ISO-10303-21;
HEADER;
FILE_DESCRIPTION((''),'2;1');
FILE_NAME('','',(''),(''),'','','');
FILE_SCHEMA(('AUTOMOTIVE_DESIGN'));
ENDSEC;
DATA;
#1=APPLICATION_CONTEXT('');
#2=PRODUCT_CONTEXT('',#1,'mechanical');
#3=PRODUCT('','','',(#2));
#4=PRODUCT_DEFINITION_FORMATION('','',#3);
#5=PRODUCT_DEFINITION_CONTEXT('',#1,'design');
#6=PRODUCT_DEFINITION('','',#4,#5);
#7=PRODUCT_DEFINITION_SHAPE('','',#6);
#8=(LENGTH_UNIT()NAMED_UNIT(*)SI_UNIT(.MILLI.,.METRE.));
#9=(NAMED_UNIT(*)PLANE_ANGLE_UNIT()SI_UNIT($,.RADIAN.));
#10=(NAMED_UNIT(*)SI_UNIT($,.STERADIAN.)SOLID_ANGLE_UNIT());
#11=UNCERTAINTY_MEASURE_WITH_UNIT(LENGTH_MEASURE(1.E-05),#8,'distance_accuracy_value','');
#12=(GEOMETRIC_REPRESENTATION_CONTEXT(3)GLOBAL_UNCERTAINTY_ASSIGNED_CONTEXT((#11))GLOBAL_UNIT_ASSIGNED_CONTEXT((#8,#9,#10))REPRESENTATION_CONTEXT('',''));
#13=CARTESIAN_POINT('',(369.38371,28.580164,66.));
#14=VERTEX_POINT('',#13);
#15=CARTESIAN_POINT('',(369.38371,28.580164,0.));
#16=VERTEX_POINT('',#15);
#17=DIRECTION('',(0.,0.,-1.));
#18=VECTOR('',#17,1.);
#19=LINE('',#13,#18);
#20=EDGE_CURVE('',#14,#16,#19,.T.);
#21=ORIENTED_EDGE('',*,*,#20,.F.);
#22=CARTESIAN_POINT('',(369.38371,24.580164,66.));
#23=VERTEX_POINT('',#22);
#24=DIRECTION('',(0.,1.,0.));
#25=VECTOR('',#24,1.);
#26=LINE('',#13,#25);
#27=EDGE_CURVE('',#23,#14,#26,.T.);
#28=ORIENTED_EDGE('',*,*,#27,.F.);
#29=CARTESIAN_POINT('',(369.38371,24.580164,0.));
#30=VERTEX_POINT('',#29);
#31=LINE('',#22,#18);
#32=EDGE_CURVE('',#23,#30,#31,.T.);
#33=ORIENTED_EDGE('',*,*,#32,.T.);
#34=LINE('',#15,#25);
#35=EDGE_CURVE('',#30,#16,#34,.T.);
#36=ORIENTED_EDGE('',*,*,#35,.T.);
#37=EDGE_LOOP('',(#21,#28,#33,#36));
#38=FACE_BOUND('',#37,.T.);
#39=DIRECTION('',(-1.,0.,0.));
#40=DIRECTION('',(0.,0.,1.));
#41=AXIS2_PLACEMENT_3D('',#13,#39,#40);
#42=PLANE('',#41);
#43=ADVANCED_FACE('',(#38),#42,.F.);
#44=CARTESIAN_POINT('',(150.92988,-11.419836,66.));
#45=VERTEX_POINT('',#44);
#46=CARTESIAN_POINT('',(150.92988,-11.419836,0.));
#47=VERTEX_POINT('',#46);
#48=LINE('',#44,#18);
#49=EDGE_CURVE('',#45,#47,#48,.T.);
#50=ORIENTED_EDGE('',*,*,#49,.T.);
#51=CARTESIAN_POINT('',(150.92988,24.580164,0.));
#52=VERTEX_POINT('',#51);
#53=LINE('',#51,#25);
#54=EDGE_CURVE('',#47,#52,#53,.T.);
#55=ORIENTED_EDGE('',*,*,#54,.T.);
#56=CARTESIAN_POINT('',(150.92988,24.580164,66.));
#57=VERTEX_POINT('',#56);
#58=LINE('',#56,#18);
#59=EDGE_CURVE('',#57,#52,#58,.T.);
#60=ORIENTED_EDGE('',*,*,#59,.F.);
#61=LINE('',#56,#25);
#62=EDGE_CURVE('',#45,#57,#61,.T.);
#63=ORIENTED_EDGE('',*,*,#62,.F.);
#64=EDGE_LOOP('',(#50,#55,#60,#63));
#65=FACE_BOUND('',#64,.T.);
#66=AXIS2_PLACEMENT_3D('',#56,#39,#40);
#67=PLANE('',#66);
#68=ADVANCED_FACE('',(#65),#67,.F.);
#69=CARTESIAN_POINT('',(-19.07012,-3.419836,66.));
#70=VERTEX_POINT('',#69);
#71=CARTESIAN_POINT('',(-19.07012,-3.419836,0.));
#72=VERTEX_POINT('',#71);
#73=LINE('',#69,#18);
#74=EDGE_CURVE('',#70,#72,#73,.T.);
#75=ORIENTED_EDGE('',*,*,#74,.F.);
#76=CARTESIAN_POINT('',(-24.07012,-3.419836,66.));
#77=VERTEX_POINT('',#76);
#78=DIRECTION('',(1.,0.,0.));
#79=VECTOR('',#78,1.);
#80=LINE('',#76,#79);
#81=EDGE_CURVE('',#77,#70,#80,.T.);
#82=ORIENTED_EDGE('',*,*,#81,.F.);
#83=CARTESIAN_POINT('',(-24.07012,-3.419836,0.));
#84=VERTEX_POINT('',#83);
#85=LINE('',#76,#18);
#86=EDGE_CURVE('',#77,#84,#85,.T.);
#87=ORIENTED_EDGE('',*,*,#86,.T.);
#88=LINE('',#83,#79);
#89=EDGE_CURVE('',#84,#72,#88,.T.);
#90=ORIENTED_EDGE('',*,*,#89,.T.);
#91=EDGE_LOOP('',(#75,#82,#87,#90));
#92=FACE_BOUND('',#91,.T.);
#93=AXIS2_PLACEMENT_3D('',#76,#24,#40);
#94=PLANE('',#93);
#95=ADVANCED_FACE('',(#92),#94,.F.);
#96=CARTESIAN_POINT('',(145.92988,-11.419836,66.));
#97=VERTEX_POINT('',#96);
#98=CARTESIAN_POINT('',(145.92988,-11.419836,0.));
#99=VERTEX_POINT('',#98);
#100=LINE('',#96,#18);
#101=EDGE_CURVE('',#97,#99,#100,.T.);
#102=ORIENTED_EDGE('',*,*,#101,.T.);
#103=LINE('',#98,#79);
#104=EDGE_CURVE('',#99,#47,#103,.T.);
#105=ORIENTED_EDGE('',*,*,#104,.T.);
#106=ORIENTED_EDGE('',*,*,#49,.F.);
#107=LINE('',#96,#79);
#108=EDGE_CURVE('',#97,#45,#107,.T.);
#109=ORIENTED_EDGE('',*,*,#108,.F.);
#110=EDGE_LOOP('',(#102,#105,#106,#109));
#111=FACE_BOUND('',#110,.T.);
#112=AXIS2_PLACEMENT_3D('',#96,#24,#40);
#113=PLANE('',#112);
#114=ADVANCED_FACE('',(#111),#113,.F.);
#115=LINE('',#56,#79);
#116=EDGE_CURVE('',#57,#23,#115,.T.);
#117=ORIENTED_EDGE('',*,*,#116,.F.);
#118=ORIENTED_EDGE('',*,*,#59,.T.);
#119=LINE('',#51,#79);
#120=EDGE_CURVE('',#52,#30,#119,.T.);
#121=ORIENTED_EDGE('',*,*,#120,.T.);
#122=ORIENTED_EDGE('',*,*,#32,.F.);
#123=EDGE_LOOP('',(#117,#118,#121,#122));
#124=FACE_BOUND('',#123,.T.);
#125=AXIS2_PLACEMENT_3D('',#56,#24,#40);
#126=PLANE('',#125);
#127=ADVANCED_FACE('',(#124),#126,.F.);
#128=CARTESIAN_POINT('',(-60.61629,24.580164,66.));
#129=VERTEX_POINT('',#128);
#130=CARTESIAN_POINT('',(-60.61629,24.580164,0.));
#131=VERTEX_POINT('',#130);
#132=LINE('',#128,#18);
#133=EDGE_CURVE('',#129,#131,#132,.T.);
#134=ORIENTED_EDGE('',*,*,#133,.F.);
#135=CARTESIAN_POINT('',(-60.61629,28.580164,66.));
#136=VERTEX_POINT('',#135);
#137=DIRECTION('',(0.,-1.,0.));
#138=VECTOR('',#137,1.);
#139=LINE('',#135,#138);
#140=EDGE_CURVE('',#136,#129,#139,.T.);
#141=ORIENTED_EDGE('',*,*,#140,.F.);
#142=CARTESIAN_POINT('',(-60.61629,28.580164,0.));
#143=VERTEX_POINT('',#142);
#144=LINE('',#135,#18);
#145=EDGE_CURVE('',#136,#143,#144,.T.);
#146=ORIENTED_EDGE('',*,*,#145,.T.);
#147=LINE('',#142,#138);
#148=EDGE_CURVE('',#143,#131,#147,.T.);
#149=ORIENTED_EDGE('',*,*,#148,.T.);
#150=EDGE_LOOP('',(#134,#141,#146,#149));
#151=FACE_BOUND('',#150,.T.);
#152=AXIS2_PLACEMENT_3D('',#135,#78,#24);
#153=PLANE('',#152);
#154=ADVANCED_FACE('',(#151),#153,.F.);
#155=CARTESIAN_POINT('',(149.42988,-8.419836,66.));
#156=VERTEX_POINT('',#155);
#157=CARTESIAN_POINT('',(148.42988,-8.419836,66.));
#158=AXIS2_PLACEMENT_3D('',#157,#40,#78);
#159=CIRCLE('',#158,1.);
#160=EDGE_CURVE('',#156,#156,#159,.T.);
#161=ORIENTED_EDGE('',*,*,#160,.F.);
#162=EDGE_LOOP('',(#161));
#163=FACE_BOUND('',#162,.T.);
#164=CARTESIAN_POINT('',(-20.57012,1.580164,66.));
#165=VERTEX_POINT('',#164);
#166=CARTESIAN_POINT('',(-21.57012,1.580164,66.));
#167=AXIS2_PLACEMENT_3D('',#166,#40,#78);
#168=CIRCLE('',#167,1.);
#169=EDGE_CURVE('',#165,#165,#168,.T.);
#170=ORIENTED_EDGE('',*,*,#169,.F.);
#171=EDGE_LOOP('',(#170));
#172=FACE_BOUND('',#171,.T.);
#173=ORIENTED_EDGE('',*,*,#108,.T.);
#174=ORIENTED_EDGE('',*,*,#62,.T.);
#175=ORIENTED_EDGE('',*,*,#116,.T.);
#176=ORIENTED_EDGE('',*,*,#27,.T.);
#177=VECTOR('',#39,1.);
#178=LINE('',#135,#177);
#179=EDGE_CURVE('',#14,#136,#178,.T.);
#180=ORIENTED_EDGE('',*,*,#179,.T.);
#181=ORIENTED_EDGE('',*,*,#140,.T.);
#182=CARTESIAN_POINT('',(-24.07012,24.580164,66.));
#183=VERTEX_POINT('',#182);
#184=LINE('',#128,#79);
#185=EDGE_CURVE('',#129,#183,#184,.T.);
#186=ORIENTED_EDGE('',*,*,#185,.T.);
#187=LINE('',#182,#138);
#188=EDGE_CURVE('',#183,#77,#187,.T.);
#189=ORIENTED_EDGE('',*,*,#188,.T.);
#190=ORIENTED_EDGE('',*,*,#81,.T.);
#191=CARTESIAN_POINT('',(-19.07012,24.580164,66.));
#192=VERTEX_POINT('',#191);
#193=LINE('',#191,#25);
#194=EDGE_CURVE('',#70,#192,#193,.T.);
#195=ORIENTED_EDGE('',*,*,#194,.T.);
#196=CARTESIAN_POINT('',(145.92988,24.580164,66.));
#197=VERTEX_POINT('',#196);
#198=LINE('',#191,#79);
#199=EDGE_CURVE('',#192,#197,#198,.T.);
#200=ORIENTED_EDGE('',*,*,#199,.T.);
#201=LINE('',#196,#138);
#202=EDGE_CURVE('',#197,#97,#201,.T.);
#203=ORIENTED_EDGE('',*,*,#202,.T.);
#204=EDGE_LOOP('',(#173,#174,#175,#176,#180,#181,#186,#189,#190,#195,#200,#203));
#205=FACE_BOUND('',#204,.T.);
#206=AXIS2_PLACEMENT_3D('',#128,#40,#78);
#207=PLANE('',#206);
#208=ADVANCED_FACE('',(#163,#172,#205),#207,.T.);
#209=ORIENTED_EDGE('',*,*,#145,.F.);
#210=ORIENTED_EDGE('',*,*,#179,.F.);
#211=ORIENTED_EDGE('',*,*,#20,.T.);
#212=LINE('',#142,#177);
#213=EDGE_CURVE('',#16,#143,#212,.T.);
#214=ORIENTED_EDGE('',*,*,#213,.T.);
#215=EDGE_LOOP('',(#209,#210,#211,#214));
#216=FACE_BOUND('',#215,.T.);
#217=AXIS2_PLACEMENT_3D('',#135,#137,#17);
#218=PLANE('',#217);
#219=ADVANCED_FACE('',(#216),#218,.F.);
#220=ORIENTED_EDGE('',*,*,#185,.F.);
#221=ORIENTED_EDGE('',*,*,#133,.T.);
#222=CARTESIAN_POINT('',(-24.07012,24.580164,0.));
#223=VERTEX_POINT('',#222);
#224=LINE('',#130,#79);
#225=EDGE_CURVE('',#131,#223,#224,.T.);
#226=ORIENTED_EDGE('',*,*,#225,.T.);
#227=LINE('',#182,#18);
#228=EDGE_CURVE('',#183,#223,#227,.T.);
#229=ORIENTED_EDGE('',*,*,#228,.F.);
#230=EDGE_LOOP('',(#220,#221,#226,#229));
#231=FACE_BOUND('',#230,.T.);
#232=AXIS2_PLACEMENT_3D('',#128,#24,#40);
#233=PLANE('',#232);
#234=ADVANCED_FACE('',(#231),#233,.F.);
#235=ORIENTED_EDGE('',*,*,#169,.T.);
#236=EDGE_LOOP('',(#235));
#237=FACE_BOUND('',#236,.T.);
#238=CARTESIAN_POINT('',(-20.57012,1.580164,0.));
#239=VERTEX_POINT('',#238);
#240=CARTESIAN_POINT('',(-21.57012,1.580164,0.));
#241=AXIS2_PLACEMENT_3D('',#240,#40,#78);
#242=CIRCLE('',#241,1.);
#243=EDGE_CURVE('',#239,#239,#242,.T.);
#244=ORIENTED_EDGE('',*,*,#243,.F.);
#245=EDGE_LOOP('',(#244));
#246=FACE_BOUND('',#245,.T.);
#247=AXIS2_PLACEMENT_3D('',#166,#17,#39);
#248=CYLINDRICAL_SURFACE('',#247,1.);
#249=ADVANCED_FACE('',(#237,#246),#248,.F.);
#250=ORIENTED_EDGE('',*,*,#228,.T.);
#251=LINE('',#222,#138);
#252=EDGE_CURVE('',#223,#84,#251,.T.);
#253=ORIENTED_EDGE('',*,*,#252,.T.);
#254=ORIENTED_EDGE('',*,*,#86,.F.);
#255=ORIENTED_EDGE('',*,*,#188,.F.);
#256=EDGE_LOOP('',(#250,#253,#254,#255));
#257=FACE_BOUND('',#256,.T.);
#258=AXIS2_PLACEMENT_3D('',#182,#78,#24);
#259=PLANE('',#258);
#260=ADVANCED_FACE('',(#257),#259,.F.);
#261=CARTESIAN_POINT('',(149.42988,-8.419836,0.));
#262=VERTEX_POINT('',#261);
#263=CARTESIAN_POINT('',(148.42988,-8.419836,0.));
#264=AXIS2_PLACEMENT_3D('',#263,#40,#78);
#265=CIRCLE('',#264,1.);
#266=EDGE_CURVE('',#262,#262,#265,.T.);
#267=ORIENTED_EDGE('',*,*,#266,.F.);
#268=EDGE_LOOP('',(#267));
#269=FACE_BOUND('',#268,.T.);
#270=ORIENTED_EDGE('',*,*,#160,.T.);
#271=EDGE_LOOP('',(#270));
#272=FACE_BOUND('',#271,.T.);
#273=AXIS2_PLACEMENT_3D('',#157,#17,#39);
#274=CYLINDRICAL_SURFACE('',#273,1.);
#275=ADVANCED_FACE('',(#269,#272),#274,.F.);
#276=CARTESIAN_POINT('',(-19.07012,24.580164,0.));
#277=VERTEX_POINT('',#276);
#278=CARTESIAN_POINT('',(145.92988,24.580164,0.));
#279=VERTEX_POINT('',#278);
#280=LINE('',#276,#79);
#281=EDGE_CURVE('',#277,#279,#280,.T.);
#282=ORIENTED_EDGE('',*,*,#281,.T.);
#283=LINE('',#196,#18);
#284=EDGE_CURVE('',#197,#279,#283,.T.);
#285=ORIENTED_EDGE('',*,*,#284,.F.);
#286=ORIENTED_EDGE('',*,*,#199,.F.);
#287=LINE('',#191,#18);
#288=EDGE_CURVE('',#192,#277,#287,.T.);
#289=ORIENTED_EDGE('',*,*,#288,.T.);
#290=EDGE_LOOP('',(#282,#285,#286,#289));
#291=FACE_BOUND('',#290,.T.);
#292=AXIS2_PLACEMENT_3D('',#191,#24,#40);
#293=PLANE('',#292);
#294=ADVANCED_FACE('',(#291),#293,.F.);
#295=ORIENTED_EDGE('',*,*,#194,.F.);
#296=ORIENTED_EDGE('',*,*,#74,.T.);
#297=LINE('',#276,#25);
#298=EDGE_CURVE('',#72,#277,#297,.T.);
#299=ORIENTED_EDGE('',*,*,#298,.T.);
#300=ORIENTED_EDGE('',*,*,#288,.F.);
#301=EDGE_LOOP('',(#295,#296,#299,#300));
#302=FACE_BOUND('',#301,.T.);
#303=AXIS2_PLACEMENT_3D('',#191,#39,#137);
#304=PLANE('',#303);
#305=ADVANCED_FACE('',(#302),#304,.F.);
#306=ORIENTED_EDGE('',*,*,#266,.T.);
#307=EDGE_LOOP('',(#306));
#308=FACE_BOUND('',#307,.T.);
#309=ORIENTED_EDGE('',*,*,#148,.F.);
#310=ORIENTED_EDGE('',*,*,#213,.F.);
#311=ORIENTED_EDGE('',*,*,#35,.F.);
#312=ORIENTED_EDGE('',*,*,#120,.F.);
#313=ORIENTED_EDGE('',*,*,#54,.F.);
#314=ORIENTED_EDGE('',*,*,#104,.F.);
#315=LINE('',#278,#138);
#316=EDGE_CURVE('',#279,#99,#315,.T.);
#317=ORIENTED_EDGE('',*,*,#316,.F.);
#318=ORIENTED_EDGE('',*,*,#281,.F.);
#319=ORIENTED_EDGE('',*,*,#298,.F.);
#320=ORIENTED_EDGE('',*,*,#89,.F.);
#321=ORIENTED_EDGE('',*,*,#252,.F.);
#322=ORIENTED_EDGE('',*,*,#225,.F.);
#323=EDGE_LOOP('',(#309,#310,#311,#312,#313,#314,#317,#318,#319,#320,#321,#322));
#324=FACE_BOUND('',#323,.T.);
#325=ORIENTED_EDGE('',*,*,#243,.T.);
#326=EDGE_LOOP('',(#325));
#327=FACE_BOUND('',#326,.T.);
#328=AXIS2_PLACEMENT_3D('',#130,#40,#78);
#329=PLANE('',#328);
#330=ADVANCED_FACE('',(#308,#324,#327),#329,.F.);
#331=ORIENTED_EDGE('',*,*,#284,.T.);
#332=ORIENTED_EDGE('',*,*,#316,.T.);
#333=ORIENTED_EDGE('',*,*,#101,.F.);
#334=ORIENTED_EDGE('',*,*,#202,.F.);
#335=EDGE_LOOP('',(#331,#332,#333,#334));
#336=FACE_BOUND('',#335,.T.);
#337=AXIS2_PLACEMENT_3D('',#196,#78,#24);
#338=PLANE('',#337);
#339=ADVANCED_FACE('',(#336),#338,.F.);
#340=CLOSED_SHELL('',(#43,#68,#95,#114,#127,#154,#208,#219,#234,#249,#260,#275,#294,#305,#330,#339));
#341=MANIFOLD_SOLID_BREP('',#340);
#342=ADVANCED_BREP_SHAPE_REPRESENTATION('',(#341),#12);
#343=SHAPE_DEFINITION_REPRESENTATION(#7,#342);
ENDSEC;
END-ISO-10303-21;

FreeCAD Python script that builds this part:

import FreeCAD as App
import Part
import Sketcher

V = App.Vector


def add_polygon(sketch, points):
    """Adds a closed chain of lines whose ends are joined by coincident constraints."""
    first, n = sketch.GeometryCount, len(points)
    for a, b in zip(points, points[1:] + points[:1]):
        sketch.addGeometry(Part.LineSegment(App.Vector(*a, 0), App.Vector(*b, 0)), False)
    for i in range(n):
        sketch.addConstraint(Sketcher.Constraint("Coincident", first + i, 2, first + (i + 1) % n, 1))

doc = App.newDocument("Part")
body = doc.addObject("PartDesign::Body", "Body")

# Sketch on XY plane
sketch1 = body.newObject("Sketcher::SketchObject", "Sketch")
sketch1.AttachmentSupport = (doc.getObject("XY_Plane"), [""])
sketch1.MapMode = "FlatFace"
add_polygon(sketch1, [(-60.6, 24.6), (-24.1, 24.6), (-24.1, -3.4), (-19.1, -3.4), (-19.1, 24.6), (145.9, 24.6), (145.9, -11.4), (150.9, -11.4), (150.9, 24.6), (369.4, 24.6), (369.4, 28.6), (-60.6, 28.6)])  # lines 0-11
sketch1.addGeometry(Part.Circle(V(148.4, -8.4, 0), V(0, 0, 1), 1), False)  # 12
sketch1.addGeometry(Part.Circle(V(-21.6, 1.6, 0), V(0, 0, 1), 1), False)  # 13
sketch1.addConstraint([
    Sketcher.Constraint("Horizontal", 0),
    Sketcher.Constraint("Vertical", 1),
    Sketcher.Constraint("Horizontal", 2),
    Sketcher.Constraint("Vertical", 3),
    Sketcher.Constraint("Horizontal", 4),
    Sketcher.Constraint("Vertical", 5),
    Sketcher.Constraint("Horizontal", 6),
    Sketcher.Constraint("Vertical", 7),
    Sketcher.Constraint("Horizontal", 8),
    Sketcher.Constraint("Vertical", 9),
    Sketcher.Constraint("Horizontal", 10),
    Sketcher.Constraint("Vertical", 11),
    Sketcher.Constraint("Equal", 12, 13),
    Sketcher.Constraint("Horizontal", 0, 2, 3, 2),
    Sketcher.Constraint("Horizontal", 4, 2, 7, 2),
    Sketcher.Constraint("Equal", 2, 6),
    Sketcher.Constraint("Diameter", 12, 2.0),
    Sketcher.Constraint("DistanceX", 2, 1, 2, 2, 5.0),
    Sketcher.Constraint("DistanceX", 4, 1, 4, 2, 165.0),
    Sketcher.Constraint("DistanceX", 10, 2, 10, 1, 430.0),
    Sketcher.Constraint("DistanceY", 1, 2, 1, 1, 28.0),
    Sketcher.Constraint("DistanceY", 5, 2, 5, 1, 36.0),
    Sketcher.Constraint("DistanceY", 9, 1, 9, 2, 4.0),
    Sketcher.Constraint("DistanceX", 13, 3, 12, 3, 170.0),
    Sketcher.Constraint("DistanceY", 12, 3, 13, 3, 10.0),
    Sketcher.Constraint("DistanceY", 13, 3, 0, 2, 23.0),
    Sketcher.Constraint("DistanceX", 0, 2, 13, 3, 2.5),
    Sketcher.Constraint("DistanceX", 0, 1, 0, 2, 36.54617),
    Sketcher.Constraint("DistanceX", -1, 1, 12, 3, 148.42988),
    Sketcher.Constraint("DistanceY", 12, 3, -1, 1, 8.419836),
])
pad1 = body.newObject("PartDesign::Pad", "Pad")
pad1.Profile = sketch1
pad1.Length = 66

doc.recompute()
